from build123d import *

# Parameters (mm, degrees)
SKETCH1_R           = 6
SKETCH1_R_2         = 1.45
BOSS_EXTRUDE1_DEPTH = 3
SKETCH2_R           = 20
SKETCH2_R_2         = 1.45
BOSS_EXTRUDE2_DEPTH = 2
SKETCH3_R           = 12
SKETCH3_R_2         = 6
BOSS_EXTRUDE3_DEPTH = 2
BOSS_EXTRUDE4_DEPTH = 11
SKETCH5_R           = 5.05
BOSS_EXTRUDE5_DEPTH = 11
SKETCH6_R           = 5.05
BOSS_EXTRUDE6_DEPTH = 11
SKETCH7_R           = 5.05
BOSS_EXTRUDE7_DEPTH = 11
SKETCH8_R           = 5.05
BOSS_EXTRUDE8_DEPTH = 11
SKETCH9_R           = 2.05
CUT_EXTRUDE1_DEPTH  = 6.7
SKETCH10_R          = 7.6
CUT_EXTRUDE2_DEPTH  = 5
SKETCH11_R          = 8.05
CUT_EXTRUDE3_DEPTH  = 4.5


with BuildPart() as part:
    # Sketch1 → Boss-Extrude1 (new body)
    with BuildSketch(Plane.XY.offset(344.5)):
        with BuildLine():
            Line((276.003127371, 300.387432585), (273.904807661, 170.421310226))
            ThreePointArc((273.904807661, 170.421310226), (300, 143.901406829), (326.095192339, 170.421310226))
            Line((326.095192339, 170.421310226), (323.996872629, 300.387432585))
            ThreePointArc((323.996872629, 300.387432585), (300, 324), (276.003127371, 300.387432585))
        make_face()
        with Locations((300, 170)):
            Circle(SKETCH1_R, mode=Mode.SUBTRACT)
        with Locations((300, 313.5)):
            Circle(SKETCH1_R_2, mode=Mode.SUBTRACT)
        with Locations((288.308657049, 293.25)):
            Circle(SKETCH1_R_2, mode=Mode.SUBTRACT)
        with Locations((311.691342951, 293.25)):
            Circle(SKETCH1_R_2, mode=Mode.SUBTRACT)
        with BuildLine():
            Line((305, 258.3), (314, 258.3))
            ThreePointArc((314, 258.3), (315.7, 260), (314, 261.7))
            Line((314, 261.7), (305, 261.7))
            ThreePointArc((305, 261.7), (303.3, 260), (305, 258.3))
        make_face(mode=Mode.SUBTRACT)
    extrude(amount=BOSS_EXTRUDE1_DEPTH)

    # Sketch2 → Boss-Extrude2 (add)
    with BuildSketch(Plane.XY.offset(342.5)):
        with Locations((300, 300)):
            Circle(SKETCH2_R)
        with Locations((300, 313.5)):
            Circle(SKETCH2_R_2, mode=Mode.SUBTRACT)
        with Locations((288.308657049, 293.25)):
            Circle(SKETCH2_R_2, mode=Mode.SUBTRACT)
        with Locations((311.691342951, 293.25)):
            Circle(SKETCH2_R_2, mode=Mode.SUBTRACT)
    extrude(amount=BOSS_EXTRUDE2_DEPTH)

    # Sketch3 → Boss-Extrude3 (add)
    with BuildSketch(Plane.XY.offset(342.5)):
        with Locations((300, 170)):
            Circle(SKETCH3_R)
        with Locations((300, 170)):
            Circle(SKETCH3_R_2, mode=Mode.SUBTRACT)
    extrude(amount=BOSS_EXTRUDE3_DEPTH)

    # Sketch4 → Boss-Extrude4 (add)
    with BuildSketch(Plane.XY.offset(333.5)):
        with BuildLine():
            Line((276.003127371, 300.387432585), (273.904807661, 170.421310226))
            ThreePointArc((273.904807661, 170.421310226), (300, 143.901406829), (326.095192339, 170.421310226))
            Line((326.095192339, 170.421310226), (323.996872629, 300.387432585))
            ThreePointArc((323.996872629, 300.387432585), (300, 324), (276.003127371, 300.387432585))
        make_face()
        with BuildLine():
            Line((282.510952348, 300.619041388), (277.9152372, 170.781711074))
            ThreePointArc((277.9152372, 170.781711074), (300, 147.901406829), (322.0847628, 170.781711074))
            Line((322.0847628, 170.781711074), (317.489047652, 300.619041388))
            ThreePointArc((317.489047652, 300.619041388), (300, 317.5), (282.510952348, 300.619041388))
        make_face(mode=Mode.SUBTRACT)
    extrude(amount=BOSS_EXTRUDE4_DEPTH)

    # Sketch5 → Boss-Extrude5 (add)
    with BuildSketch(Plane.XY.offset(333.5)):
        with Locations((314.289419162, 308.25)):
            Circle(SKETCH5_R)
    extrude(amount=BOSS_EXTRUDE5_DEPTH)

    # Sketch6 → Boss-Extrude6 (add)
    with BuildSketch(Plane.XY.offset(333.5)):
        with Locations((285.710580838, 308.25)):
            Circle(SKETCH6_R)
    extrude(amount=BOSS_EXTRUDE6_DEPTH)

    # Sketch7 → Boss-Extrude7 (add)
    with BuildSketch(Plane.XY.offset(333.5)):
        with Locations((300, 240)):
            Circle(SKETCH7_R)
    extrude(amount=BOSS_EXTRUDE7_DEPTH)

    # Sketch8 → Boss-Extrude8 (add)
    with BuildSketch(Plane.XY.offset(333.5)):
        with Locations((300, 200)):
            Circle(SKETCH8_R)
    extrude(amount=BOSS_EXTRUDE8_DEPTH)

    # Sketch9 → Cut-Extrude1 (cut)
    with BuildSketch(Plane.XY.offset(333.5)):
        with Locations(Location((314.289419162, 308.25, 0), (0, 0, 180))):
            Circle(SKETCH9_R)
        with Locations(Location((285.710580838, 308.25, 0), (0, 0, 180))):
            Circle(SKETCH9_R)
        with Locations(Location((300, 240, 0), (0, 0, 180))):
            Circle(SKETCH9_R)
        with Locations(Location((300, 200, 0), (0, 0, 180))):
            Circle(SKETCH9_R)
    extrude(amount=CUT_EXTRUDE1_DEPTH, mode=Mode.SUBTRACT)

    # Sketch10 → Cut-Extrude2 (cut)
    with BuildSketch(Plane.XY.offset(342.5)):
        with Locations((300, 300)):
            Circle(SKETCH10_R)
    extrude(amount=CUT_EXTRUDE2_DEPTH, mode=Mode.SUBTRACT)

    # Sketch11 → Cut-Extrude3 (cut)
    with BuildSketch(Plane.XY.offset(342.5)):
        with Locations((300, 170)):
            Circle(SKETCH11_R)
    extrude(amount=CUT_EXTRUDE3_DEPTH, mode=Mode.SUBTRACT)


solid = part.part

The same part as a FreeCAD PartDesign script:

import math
import FreeCAD as App
import Part
import Sketcher

doc = App.newDocument("Part")
params = doc.addObject("Spreadsheet::Sheet", "Params")
for row, (alias, value) in enumerate([
    ("sketch1_diameter", "12 mm"),
    ("sketch1_radius", "24 mm"),
    ("sketch1_diameter2", "2.9 mm"),
    ("sketch1_radius2", "1.7 mm"),
    ("sketch1_width", "9 mm"),
    ("pad1_length", "3 mm"),
    ("sketch2_diameter", "40 mm"),
    ("sketch2_diameter2", "2.9 mm"),
    ("pad2_length", "2 mm"),
    ("sketch3_diameter", "24 mm"),
    ("sketch3_diameter2", "12 mm"),
    ("pad3_length", "2 mm"),
    ("sketch4_radius", "24 mm"),
    ("sketch4_radius2", "17.5 mm"),
    ("pad4_length", "11 mm"),
    ("sketch5_diameter", "10.1 mm"),
    ("pad5_length", "11 mm"),
    ("sketch6_diameter", "10.1 mm"),
    ("pad6_length", "11 mm"),
    ("sketch7_diameter", "10.1 mm"),
    ("pad7_length", "11 mm"),
    ("sketch8_diameter", "10.1 mm"),
    ("pad8_length", "11 mm"),
    ("sketch9_diameter", "4.1 mm"),
    ("pocket1_length", "6.7 mm"),
    ("sketch10_diameter", "15.2 mm"),
    ("pocket2_length", "5 mm"),
    ("sketch11_diameter", "16.1 mm"),
    ("pocket3_length", "4.5 mm"),
], start=1):
    params.set(f"A{row}", alias)
    params.set(f"B{row}", "=" + value)
    params.setAlias(f"B{row}", alias)

body = doc.addObject("PartDesign::Body", "Body")

# Sketch on XY plane
sketch1 = body.newObject("Sketcher::SketchObject", "Sketch")
sketch1.AttachmentSupport = (doc.getObject("XY_Plane"), [""])
sketch1.MapMode = "FlatFace"
sketch1.AttachmentOffset = App.Placement(App.Vector(0, 0, 344.5), App.Rotation())
sketch1.addGeometry([
    Part.LineSegment(App.Vector(276.003127, 300.387433, 0), App.Vector(273.904808, 170.42131, 0)),  # 0
    Part.ArcOfCircle(Part.Circle(App.Vector(300, 170, 0), App.Vector(0, 0, 1), 26.098593), math.radians(179.075033), math.radians(360.924967)),  # 1
    Part.LineSegment(App.Vector(326.095192, 170.42131, 0), App.Vector(323.996873, 300.387433, 0)),  # 2
    Part.ArcOfCircle(Part.Circle(App.Vector(300, 300, 0), App.Vector(0, 0, 1), 24), math.radians(0.924967), math.radians(179.075033)),  # 3
    Part.Circle(App.Vector(300, 170, 0), App.Vector(0, 0, 1), 6),  # 4
    Part.Circle(App.Vector(288.308657, 293.25, 0), App.Vector(0, 0, 1), 1.45),  # 5
    Part.Circle(App.Vector(300, 313.5, 0), App.Vector(0, 0, 1), 1.45),  # 6
    Part.LineSegment(App.Vector(314, 258.3, 0), App.Vector(305, 258.3, 0)),  # 7
    Part.ArcOfCircle(Part.Circle(App.Vector(305, 260, 0), App.Vector(0, 0, 1), 1.7), math.radians(90), math.radians(270)),  # 8
    Part.LineSegment(App.Vector(305, 261.7, 0), App.Vector(314, 261.7, 0)),  # 9
    Part.ArcOfCircle(Part.Circle(App.Vector(314, 260, 0), App.Vector(0, 0, 1), 1.7), math.radians(-90), math.radians(90)),  # 10
    Part.Circle(App.Vector(311.691343, 293.25, 0), App.Vector(0, 0, 1), 1.45),  # 11
], False)
sketch1.addConstraint([
    Sketcher.Constraint("Tangent", 0, 2, 1, 1),
    Sketcher.Constraint("Tangent", 1, 2, 2, 1),
    Sketcher.Constraint("Tangent", 2, 2, 3, 1),
    Sketcher.Constraint("Tangent", 3, 2, 0, 1),
    Sketcher.Constraint("Tangent", 7, 2, 8, 2),
    Sketcher.Constraint("Tangent", 8, 1, 9, 1),
    Sketcher.Constraint("Tangent", 9, 2, 10, 2),
    Sketcher.Constraint("Tangent", 10, 1, 7, 1),
    Sketcher.Constraint("Horizontal", 7),
    Sketcher.Constraint("Horizontal", 9),
    Sketcher.Constraint("Coincident", 4, 3, 1, 3),
    Sketcher.Constraint("Equal", 5, 6),
    Sketcher.Constraint("Equal", 6, 11),
    Sketcher.Constraint("Horizontal", 5, 3, 11, 3),
    Sketcher.Constraint("Horizontal", 0, 2, 1, 2),
    Sketcher.Constraint("Vertical", 4, 3, 6, 3),
    Sketcher.Constraint("Diameter", 4, 12.0),
    Sketcher.Constraint("Radius", 3, 24.0),
    Sketcher.Constraint("Diameter", 5, 2.9),
    Sketcher.Constraint("Radius", 8, 1.7),
    Sketcher.Constraint("DistanceX", 7, 2, 7, 1, 9.0),
    Sketcher.Constraint("DistanceX", -1, 1, 1, 3, 300.0),
    Sketcher.Constraint("DistanceY", -1, 1, 1, 3, 170.0),
    Sketcher.Constraint("DistanceY", -1, 1, 3, 3, 300.0),
    Sketcher.Constraint("DistanceX", -1, 1, 8, 3, 305.0),
    Sketcher.Constraint("DistanceY", -1, 1, 8, 3, 260.0),
    Sketcher.Constraint("DistanceY", -1, 1, 6, 3, 313.5),
    Sketcher.Constraint("DistanceY", -1, 1, 5, 3, 293.25),
    Sketcher.Constraint("Radius", 1, 26.098593),
    Sketcher.Constraint("DistanceX", 0, 2, 5, 3, 14.403849),
    Sketcher.Constraint("DistanceX", 11, 3, 2, 2, 12.30553),
])
sketch1.setExpression("Constraints[16]", "Params.sketch1_diameter")
sketch1.setExpression("Constraints[17]", "Params.sketch1_radius")
sketch1.setExpression("Constraints[18]", "Params.sketch1_diameter2")
sketch1.setExpression("Constraints[19]", "Params.sketch1_radius2")
sketch1.setExpression("Constraints[20]", "Params.sketch1_width")
pad1 = body.newObject("PartDesign::Pad", "Pad")
pad1.Profile = sketch1
pad1.setExpression("Length", "Params.pad1_length")

# Sketch on XY plane
sketch2 = body.newObject("Sketcher::SketchObject", "Sketch001")
sketch2.AttachmentSupport = (doc.getObject("XY_Plane"), [""])
sketch2.MapMode = "FlatFace"
sketch2.AttachmentOffset = App.Placement(App.Vector(0, 0, 342.5), App.Rotation())
sketch2.addGeometry([
    Part.Circle(App.Vector(300, 300, 0), App.Vector(0, 0, 1), 20),
    Part.Circle(App.Vector(288.308657, 293.25, 0), App.Vector(0, 0, 1), 1.45),
    Part.Circle(App.Vector(311.691343, 293.25, 0), App.Vector(0, 0, 1), 1.45),
    Part.Circle(App.Vector(300, 313.5, 0), App.Vector(0, 0, 1), 1.45),
], False)
sketch2.addConstraint([
    Sketcher.Constraint("Equal", 1, 2),
    Sketcher.Constraint("Equal", 2, 3),
    Sketcher.Constraint("Horizontal", 1, 3, 2, 3),
    Sketcher.Constraint("Vertical", 0, 3, 3, 3),
    Sketcher.Constraint("Diameter", 0, 40.0),
    Sketcher.Constraint("Diameter", 1, 2.9),
    Sketcher.Constraint("DistanceX", -1, 1, 0, 3, 300.0),
    Sketcher.Constraint("DistanceY", -1, 1, 0, 3, 300.0),
    Sketcher.Constraint("DistanceY", -1, 1, 3, 3, 313.5),
    Sketcher.Constraint("DistanceY", -1, 1, 1, 3, 293.25),
    Sketcher.Constraint("DistanceX", -1, 1, 1, 3, 288.308657),
    Sketcher.Constraint("DistanceX", -1, 1, 2, 3, 311.691343),
])
sketch2.setExpression("Constraints[4]", "Params.sketch2_diameter")
sketch2.setExpression("Constraints[5]", "Params.sketch2_diameter2")
pad2 = body.newObject("PartDesign::Pad", "Pad001")
pad2.Profile = sketch2
pad2.setExpression("Length", "Params.pad2_length")

# Sketch on XY plane
sketch3 = body.newObject("Sketcher::SketchObject", "Sketch002")
sketch3.AttachmentSupport = (doc.getObject("XY_Plane"), [""])
sketch3.MapMode = "FlatFace"
sketch3.AttachmentOffset = App.Placement(App.Vector(0, 0, 342.5), App.Rotation())
sketch3.addGeometry([
    Part.Circle(App.Vector(300, 170, 0), App.Vector(0, 0, 1), 12),
    Part.Circle(App.Vector(300, 170, 0), App.Vector(0, 0, 1), 6),
], False)
sketch3.addConstraint([
    Sketcher.Constraint("Coincident", 1, 3, 0, 3),
    Sketcher.Constraint("Diameter", 0, 24.0),
    Sketcher.Constraint("Diameter", 1, 12.0),
    Sketcher.Constraint("DistanceX", -1, 1, 0, 3, 300.0),
    Sketcher.Constraint("DistanceY", -1, 1, 0, 3, 170.0),
])
sketch3.setExpression("Constraints[1]", "Params.sketch3_diameter")
sketch3.setExpression("Constraints[2]", "Params.sketch3_diameter2")
pad3 = body.newObject("PartDesign::Pad", "Pad002")
pad3.Profile = sketch3
pad3.setExpression("Length", "Params.pad3_length")

# Sketch on XY plane
sketch4 = body.newObject("Sketcher::SketchObject", "Sketch003")
sketch4.AttachmentSupport = (doc.getObject("XY_Plane"), [""])
sketch4.MapMode = "FlatFace"
sketch4.AttachmentOffset = App.Placement(App.Vector(0, 0, 333.5), App.Rotation())
sketch4.addGeometry([
    Part.LineSegment(App.Vector(276.003127, 300.387433, 0), App.Vector(273.904808, 170.42131, 0)),  # 0
    Part.ArcOfCircle(Part.Circle(App.Vector(300, 170, 0), App.Vector(0, 0, 1), 26.098593), math.radians(179.075033), math.radians(360.924967)),  # 1
    Part.LineSegment(App.Vector(326.095192, 170.42131, 0), App.Vector(323.996873, 300.387433, 0)),  # 2
    Part.ArcOfCircle(Part.Circle(App.Vector(300, 300, 0), App.Vector(0, 0, 1), 24), math.radians(0.924967), math.radians(179.075033)),  # 3
    Part.LineSegment(App.Vector(277.915237, 170.781711, 0), App.Vector(282.510952, 300.619041, 0)),  # 4
    Part.ArcOfCircle(Part.Circle(App.Vector(300, 300, 0), App.Vector(0, 0, 1), 17.5), math.radians(2.027192), math.radians(177.972808)),  # 5
    Part.LineSegment(App.Vector(317.489048, 300.619041, 0), App.Vector(322.084763, 170.781711, 0)),  # 6
    Part.ArcOfCircle(Part.Circle(App.Vector(300, 170, 0), App.Vector(0, 0, 1), 22.098593), math.radians(177.972808), math.radians(362.027192)),  # 7
], False)
sketch4.addConstraint([
    Sketcher.Constraint("Tangent", 0, 2, 1, 1),
    Sketcher.Constraint("Tangent", 1, 2, 2, 1),
    Sketcher.Constraint("Tangent", 2, 2, 3, 1),
    Sketcher.Constraint("Tangent", 3, 2, 0, 1),
    Sketcher.Constraint("Tangent", 4, 2, 5, 2),
    Sketcher.Constraint("Tangent", 5, 1, 6, 1),
    Sketcher.Constraint("Tangent", 6, 2, 7, 2),
    Sketcher.Constraint("Tangent", 7, 1, 4, 1),
    Sketcher.Constraint("Coincident", 5, 3, 3, 3),
    Sketcher.Constraint("Coincident", 7, 3, 1, 3),
    Sketcher.Constraint("Horizontal", 0, 2, 1, 2),
    Sketcher.Constraint("Radius", 3, 24.0),
    Sketcher.Constraint("Radius", 5, 17.5),
    Sketcher.Constraint("DistanceX", -1, 1, 1, 3, 300.0),
    Sketcher.Constraint("DistanceY", -1, 1, 1, 3, 170.0),
    Sketcher.Constraint("DistanceY", -1, 1, 3, 3, 300.0),
    Sketcher.Constraint("Radius", 1, 26.098593),
    Sketcher.Constraint("Radius", 7, 22.098593),
])
sketch4.setExpression("Constraints[11]", "Params.sketch4_radius")
sketch4.setExpression("Constraints[12]", "Params.sketch4_radius2")
pad4 = body.newObject("PartDesign::Pad", "Pad003")
pad4.Profile = sketch4
pad4.setExpression("Length", "Params.pad4_length")

# Sketch on XY plane
sketch5 = body.newObject("Sketcher::SketchObject", "Sketch004")
sketch5.AttachmentSupport = (doc.getObject("XY_Plane"), [""])
sketch5.MapMode = "FlatFace"
sketch5.AttachmentOffset = App.Placement(App.Vector(0, 0, 333.5), App.Rotation())
sketch5.addGeometry(Part.Circle(App.Vector(314.289419, 308.25, 0), App.Vector(0, 0, 1), 5.05), False)
sketch5.addConstraint([
    Sketcher.Constraint("Diameter", 0, 10.1),
    Sketcher.Constraint("DistanceY", -1, 1, 0, 3, 308.25),
    Sketcher.Constraint("DistanceX", -1, 1, 0, 3, 314.289419),
])
sketch5.setExpression("Constraints[0]", "Params.sketch5_diameter")
pad5 = body.newObject("PartDesign::Pad", "Pad004")
pad5.Profile = sketch5
pad5.setExpression("Length", "Params.pad5_length")

# Sketch on XY plane
sketch6 = body.newObject("Sketcher::SketchObject", "Sketch005")
sketch6.AttachmentSupport = (doc.getObject("XY_Plane"), [""])
sketch6.MapMode = "FlatFace"
sketch6.AttachmentOffset = App.Placement(App.Vector(0, 0, 333.5), App.Rotation())
sketch6.addGeometry(Part.Circle(App.Vector(285.710581, 308.25, 0), App.Vector(0, 0, 1), 5.05), False)
sketch6.addConstraint([
    Sketcher.Constraint("Diameter", 0, 10.1),
    Sketcher.Constraint("DistanceY", -1, 1, 0, 3, 308.25),
    Sketcher.Constraint("DistanceX", -1, 1, 0, 3, 285.710581),
])
sketch6.setExpression("Constraints[0]", "Params.sketch6_diameter")
pad6 = body.newObject("PartDesign::Pad", "Pad005")
pad6.Profile = sketch6
pad6.setExpression("Length", "Params.pad6_length")

# Sketch on XY plane
sketch7 = body.newObject("Sketcher::SketchObject", "Sketch006")
sketch7.AttachmentSupport = (doc.getObject("XY_Plane"), [""])
sketch7.MapMode = "FlatFace"
sketch7.AttachmentOffset = App.Placement(App.Vector(0, 0, 333.5), App.Rotation())
sketch7.addGeometry(Part.Circle(App.Vector(300, 240, 0), App.Vector(0, 0, 1), 5.05), False)
sketch7.addConstraint([
    Sketcher.Constraint("Diameter", 0, 10.1),
    Sketcher.Constraint("DistanceX", -1, 1, 0, 3, 300.0),
    Sketcher.Constraint("DistanceY", -1, 1, 0, 3, 240.0),
])
sketch7.setExpression("Constraints[0]", "Params.sketch7_diameter")
pad7 = body.newObject("PartDesign::Pad", "Pad006")
pad7.Profile = sketch7
pad7.setExpression("Length", "Params.pad7_length")

# Sketch on XY plane
sketch8 = body.newObject("Sketcher::SketchObject", "Sketch007")
sketch8.AttachmentSupport = (doc.getObject("XY_Plane"), [""])
sketch8.MapMode = "FlatFace"
sketch8.AttachmentOffset = App.Placement(App.Vector(0, 0, 333.5), App.Rotation())
sketch8.addGeometry(Part.Circle(App.Vector(300, 200, 0), App.Vector(0, 0, 1), 5.05), False)
sketch8.addConstraint([
    Sketcher.Constraint("Diameter", 0, 10.1),
    Sketcher.Constraint("DistanceX", -1, 1, 0, 3, 300.0),
    Sketcher.Constraint("DistanceY", -1, 1, 0, 3, 200.0),
])
sketch8.setExpression("Constraints[0]", "Params.sketch8_diameter")
pad8 = body.newObject("PartDesign::Pad", "Pad007")
pad8.Profile = sketch8
pad8.setExpression("Length", "Params.pad8_length")

# Sketch on XY plane
sketch9 = body.newObject("Sketcher::SketchObject", "Sketch008")
sketch9.AttachmentSupport = (doc.getObject("XY_Plane"), [""])
sketch9.MapMode = "FlatFace"
sketch9.AttachmentOffset = App.Placement(App.Vector(0, 0, 333.5), App.Rotation())
sketch9.addGeometry([
    Part.Circle(App.Vector(314.289419, 308.25, 0), App.Vector(0, 0, 1), 2.05),
    Part.Circle(App.Vector(285.710581, 308.25, 0), App.Vector(0, 0, 1), 2.05),
    Part.Circle(App.Vector(300, 240, 0), App.Vector(0, 0, 1), 2.05),
    Part.Circle(App.Vector(300, 200, 0), App.Vector(0, 0, 1), 2.05),
], False)
sketch9.addConstraint([
    Sketcher.Constraint("Equal", 0, 1),
    Sketcher.Constraint("Equal", 1, 2),
    Sketcher.Constraint("Equal", 2, 3),
    Sketcher.Constraint("Horizontal", 0, 3, 1, 3),
    Sketcher.Constraint("Vertical", 2, 3, 3, 3),
    Sketcher.Constraint("Diameter", 0, 4.1),
    Sketcher.Constraint("DistanceX", -1, 1, 2, 3, 300.0),
    Sketcher.Constraint("DistanceY", -1, 1, 2, 3, 240.0),
    Sketcher.Constraint("DistanceY", -1, 1, 3, 3, 200.0),
    Sketcher.Constraint("DistanceY", -1, 1, 0, 3, 308.25),
    Sketcher.Constraint("DistanceX", -1, 1, 0, 3, 314.289419),
    Sketcher.Constraint("DistanceX", -1, 1, 1, 3, 285.710581),
])
sketch9.setExpression("Constraints[5]", "Params.sketch9_diameter")
pocket1 = body.newObject("PartDesign::Pocket", "Pocket")
pocket1.Profile = sketch9
pocket1.setExpression("Length", "Params.pocket1_length")
pocket1.Reversed = True

# Sketch on XY plane
sketch10 = body.newObject("Sketcher::SketchObject", "Sketch009")
sketch10.AttachmentSupport = (doc.getObject("XY_Plane"), [""])
sketch10.MapMode = "FlatFace"
sketch10.AttachmentOffset = App.Placement(App.Vector(0, 0, 342.5), App.Rotation())
sketch10.addGeometry(Part.Circle(App.Vector(300, 300, 0), App.Vector(0, 0, 1), 7.6), False)
sketch10.addConstraint([
    Sketcher.Constraint("Diameter", 0, 15.2),
    Sketcher.Constraint("DistanceX", -1, 1, 0, 3, 300.0),
    Sketcher.Constraint("DistanceY", -1, 1, 0, 3, 300.0),
])
sketch10.setExpression("Constraints[0]", "Params.sketch10_diameter")
pocket2 = body.newObject("PartDesign::Pocket", "Pocket001")
pocket2.Profile = sketch10
pocket2.setExpression("Length", "Params.pocket2_length")
pocket2.Reversed = True

# Sketch on XY plane
sketch11 = body.newObject("Sketcher::SketchObject", "Sketch010")
sketch11.AttachmentSupport = (doc.getObject("XY_Plane"), [""])
sketch11.MapMode = "FlatFace"
sketch11.AttachmentOffset = App.Placement(App.Vector(0, 0, 342.5), App.Rotation())
sketch11.addGeometry(Part.Circle(App.Vector(300, 170, 0), App.Vector(0, 0, 1), 8.05), False)
sketch11.addConstraint([
    Sketcher.Constraint("Diameter", 0, 16.1),
    Sketcher.Constraint("DistanceX", -1, 1, 0, 3, 300.0),
    Sketcher.Constraint("DistanceY", -1, 1, 0, 3, 170.0),
])
sketch11.setExpression("Constraints[0]", "Params.sketch11_diameter")
pocket3 = body.newObject("PartDesign::Pocket", "Pocket002")
pocket3.Profile = sketch11
pocket3.setExpression("Length", "Params.pocket3_length")
pocket3.Reversed = True

doc.recompute()
